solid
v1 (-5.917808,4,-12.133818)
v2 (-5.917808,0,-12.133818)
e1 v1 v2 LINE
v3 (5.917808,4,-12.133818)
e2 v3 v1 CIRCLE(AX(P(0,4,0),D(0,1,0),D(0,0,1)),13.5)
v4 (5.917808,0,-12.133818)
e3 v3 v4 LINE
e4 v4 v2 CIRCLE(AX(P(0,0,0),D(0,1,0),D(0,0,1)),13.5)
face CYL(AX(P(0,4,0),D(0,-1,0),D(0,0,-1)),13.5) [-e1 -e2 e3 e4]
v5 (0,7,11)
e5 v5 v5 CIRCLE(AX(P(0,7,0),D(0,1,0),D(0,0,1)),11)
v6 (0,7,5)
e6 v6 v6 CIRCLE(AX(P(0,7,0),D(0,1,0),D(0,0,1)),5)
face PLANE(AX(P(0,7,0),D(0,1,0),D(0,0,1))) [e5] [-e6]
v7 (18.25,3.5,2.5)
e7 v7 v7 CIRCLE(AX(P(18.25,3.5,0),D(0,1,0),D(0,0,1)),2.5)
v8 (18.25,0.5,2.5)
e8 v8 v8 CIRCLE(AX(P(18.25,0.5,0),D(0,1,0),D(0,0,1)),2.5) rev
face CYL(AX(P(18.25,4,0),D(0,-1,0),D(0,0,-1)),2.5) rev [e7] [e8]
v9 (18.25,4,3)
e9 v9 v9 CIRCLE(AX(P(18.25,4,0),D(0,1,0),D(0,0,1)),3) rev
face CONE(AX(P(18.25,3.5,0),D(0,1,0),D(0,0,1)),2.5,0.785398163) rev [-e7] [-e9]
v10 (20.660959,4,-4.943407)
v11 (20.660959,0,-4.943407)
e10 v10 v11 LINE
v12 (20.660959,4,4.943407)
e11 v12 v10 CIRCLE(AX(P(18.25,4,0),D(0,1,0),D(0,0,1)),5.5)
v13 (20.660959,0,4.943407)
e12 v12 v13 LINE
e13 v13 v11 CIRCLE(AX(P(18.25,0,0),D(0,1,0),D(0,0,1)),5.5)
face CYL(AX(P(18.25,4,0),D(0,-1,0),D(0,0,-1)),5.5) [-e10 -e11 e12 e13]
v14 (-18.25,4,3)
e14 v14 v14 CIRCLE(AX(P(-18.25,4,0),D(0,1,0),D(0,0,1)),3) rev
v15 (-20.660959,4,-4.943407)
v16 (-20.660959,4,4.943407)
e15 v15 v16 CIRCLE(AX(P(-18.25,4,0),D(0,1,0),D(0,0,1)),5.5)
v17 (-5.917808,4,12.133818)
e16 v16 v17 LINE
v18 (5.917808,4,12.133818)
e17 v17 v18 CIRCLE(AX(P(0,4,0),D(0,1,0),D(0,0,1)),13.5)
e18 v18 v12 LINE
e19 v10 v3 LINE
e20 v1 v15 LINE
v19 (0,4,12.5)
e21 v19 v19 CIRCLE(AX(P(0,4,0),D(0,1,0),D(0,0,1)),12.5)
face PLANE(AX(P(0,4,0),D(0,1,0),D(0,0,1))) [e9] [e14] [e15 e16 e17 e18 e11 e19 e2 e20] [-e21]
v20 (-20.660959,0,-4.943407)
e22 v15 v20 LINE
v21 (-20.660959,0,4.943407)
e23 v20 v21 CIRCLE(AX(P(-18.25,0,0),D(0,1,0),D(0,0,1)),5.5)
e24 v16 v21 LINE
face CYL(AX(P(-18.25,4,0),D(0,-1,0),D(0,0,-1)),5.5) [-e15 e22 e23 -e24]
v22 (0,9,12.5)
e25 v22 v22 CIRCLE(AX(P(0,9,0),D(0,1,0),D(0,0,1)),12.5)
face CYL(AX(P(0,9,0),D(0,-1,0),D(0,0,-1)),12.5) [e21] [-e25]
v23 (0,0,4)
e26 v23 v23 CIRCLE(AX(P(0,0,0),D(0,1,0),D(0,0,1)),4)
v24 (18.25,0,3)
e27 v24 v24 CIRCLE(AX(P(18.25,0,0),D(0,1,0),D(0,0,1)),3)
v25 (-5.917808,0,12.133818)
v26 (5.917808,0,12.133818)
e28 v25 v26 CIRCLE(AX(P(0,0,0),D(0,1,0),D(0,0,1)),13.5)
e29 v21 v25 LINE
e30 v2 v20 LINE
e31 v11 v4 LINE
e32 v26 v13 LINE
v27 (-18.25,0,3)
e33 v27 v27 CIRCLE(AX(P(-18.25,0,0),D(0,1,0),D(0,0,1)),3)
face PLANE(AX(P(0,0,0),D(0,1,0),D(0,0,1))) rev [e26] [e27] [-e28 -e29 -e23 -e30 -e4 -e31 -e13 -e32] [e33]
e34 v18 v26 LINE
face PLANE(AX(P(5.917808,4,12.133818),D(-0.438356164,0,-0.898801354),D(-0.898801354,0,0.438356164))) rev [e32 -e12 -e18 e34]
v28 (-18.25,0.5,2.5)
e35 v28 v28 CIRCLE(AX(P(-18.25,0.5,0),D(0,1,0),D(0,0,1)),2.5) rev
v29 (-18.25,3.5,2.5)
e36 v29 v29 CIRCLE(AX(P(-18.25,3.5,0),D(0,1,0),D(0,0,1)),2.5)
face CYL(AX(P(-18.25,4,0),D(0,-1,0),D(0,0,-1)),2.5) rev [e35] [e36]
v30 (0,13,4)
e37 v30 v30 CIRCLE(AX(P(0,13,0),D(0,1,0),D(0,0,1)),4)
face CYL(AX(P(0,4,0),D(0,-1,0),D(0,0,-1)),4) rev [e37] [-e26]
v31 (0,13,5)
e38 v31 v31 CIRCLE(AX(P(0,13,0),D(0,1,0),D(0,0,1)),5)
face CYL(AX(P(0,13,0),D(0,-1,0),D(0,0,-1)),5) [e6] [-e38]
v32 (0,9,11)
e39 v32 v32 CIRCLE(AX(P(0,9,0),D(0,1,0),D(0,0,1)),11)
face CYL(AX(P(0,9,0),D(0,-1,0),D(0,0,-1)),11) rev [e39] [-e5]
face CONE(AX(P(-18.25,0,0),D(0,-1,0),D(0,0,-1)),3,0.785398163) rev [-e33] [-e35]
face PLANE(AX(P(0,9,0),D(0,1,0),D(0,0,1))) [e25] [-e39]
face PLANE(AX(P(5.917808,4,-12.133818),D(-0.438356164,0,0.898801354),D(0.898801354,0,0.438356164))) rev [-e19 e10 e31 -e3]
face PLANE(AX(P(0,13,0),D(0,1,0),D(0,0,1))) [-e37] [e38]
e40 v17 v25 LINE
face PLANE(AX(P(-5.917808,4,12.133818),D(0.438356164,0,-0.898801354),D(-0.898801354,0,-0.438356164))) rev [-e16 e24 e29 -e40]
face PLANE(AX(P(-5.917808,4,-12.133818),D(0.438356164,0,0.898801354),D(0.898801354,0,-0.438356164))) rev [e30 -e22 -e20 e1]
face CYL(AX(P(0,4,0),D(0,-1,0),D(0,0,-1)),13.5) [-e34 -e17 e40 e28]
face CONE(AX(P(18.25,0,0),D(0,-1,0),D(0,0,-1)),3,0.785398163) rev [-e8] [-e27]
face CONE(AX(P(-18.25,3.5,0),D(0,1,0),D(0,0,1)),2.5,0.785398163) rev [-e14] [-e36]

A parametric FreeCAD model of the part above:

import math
import FreeCAD as App
import Part
import Sketcher
from FreeCAD import Vector
Q = App.Units.Quantity


def edges_at(feature, points):
    """Names of the edges that pass closest to the given points."""
    edges = feature.Shape.Edges
    near = lambda p: min(range(len(edges)), key=lambda i: edges[i].distToShape(Part.Vertex(*p))[0])
    return sorted({f"Edge{near(p) + 1}" for p in points})

doc = App.newDocument("Part")
body = doc.addObject("PartDesign::Body", "Body")

# Sketch on XZ plane
sketch1 = body.newObject("Sketcher::SketchObject", "Sketch")
sketch1.AttachmentSupport = (doc.getObject("XZ_Plane"), [""])
sketch1.MapMode = "FlatFace"
sketch1.addGeometry(Part.LineSegment(Vector(-5.9, -12.1, 0), Vector(-20.7, -4.9, 0)), False)
sketch1.addGeometry(Part.ArcOfCircle(Part.Circle(Vector(-18.2, 0, 0), Vector(0, 0, 1), 5.5), math.radians(116), math.radians(244)), False)
sketch1.addGeometry(Part.LineSegment(Vector(-20.7, 4.9, 0), Vector(-5.9, 12.1, 0)), False)
sketch1.addGeometry(Part.ArcOfCircle(Part.Circle(Vector(0, 0, 0), Vector(0, 0, 1), 13.5), math.radians(64), math.radians(116)), False)
sketch1.addGeometry(Part.LineSegment(Vector(5.9, 12.1, 0), Vector(20.7, 4.9, 0)), False)
sketch1.addGeometry(Part.ArcOfCircle(Part.Circle(Vector(18.2, 0, 0), Vector(0, 0, 1), 5.5), math.radians(-64), math.radians(64)), False)
sketch1.addGeometry(Part.LineSegment(Vector(20.7, -4.9, 0), Vector(5.9, -12.1, 0)), False)
sketch1.addGeometry(Part.ArcOfCircle(Part.Circle(Vector(0, 0, 0), Vector(0, 0, 1), 13.5), math.radians(-116), math.radians(-64)), False)
sketch1.addGeometry(Part.Circle(Vector(-18.2, 0, 0), Vector(0, 0, 1), 2.5), False)
sketch1.addGeometry(Part.Circle(Vector(0, 0, 0), Vector(0, 0, 1), 4), False)
sketch1.addGeometry(Part.Circle(Vector(18.2, 0, 0), Vector(0, 0, 1), 2.5), False)
sketch1.addConstraint(Sketcher.Constraint("Tangent", 0, 2, 1, 2))
sketch1.addConstraint(Sketcher.Constraint("Tangent", 1, 1, 2, 1))
sketch1.addConstraint(Sketcher.Constraint("Tangent", 2, 2, 3, 2))
sketch1.addConstraint(Sketcher.Constraint("Tangent", 3, 1, 4, 1))
sketch1.addConstraint(Sketcher.Constraint("Tangent", 4, 2, 5, 2))
sketch1.addConstraint(Sketcher.Constraint("Tangent", 5, 1, 6, 1))
sketch1.addConstraint(Sketcher.Constraint("Tangent", 6, 2, 7, 2))
sketch1.addConstraint(Sketcher.Constraint("Tangent", 7, 1, 0, 1))
sketch1.addConstraint(Sketcher.Constraint("Coincident", 3, 3, -1, 1))
sketch1.addConstraint(Sketcher.Constraint("Coincident", 7, 3, -1, 1))
sketch1.addConstraint(Sketcher.Constraint("Coincident", 9, 3, -1, 1))
sketch1.addConstraint(Sketcher.Constraint("Coincident", 8, 3, 1, 3))
sketch1.addConstraint(Sketcher.Constraint("Coincident", 10, 3, 5, 3))
sketch1.addConstraint(Sketcher.Constraint("Equal", 1, 5))
sketch1.addConstraint(Sketcher.Constraint("Equal", 3, 7))
sketch1.addConstraint(Sketcher.Constraint("Equal", 8, 10))
sketch1.addConstraint(Sketcher.Constraint("Symmetric", 1, 3, 5, 3, -1, 1))
sketch1.addConstraint(Sketcher.Constraint("PointOnObject", 1, 3, -1))
sketch1.addConstraint(Sketcher.Constraint("Diameter", 8, Q("5 mm")))
sketch1.addConstraint(Sketcher.Constraint("Diameter", 9, Q("8 mm")))
sketch1.addConstraint(Sketcher.Constraint("Radius", 1, Q("5.5 mm")))
sketch1.addConstraint(Sketcher.Constraint("Radius", 3, Q("13.5 mm")))
sketch1.addConstraint(Sketcher.Constraint("DistanceX", 1, 3, 5, 3, Q("36.5 mm")))
pad1 = body.newObject("PartDesign::Pad", "Pad")
pad1.Profile = sketch1
pad1.Length = 4
pad1.Reversed = True

# Sketch on XZ plane
sketch2 = body.newObject("Sketcher::SketchObject", "Sketch001")
sketch2.AttachmentSupport = (doc.getObject("XZ_Plane"), [""])
sketch2.MapMode = "FlatFace"
sketch2.AttachmentOffset = App.Placement(Vector(0, 0, -4), App.Rotation())
sketch2.addGeometry(Part.Circle(Vector(0, 0, 0), Vector(0, 0, 1), 5), False)
sketch2.addGeometry(Part.Circle(Vector(0, 0, 0), Vector(0, 0, 1), 4), False)
sketch2.addConstraint(Sketcher.Constraint("Coincident", 0, 3, -1, 1))
sketch2.addConstraint(Sketcher.Constraint("Coincident", 1, 3, -1, 1))
sketch2.addConstraint(Sketcher.Constraint("Diameter", 0, Q("10 mm")))
sketch2.addConstraint(Sketcher.Constraint("Diameter", 1, Q("8 mm")))
pad2 = body.newObject("PartDesign::Pad", "Pad001")
pad2.Profile = sketch2
pad2.Length = 9
pad2.Reversed = True

# Sketch on XZ plane
sketch3 = body.newObject("Sketcher::SketchObject", "Sketch002")
sketch3.AttachmentSupport = (doc.getObject("XZ_Plane"), [""])
sketch3.MapMode = "FlatFace"
sketch3.AttachmentOffset = App.Placement(Vector(0, 0, -4), App.Rotation())
sketch3.addGeometry(Part.Circle(Vector(0, 0, 0), Vector(0, 0, 1), 12), False)
sketch3.addGeometry(Part.Circle(Vector(0, 0, 0), Vector(0, 0, 1), 11), False)
sketch3.addConstraint(Sketcher.Constraint("Coincident", 0, 3, -1, 1))
sketch3.addConstraint(Sketcher.Constraint("Coincident", 1, 3, -1, 1))
sketch3.addConstraint(Sketcher.Constraint("Diameter", 0, Q("25 mm")))
sketch3.addConstraint(Sketcher.Constraint("Diameter", 1, Q("22 mm")))
pad3 = body.newObject("PartDesign::Pad", "Pad002")
pad3.Profile = sketch3
pad3.Length = 5
pad3.Reversed = True

# Sketch on XZ plane
sketch4 = body.newObject("Sketcher::SketchObject", "Sketch003")
sketch4.AttachmentSupport = (doc.getObject("XZ_Plane"), [""])
sketch4.MapMode = "FlatFace"
sketch4.AttachmentOffset = App.Placement(Vector(0, 0, -4), App.Rotation())
sketch4.addGeometry(Part.Circle(Vector(0, 0, 0), Vector(0, 0, 1), 11), False)
sketch4.addGeometry(Part.Circle(Vector(0, 0, 0), Vector(0, 0, 1), 5), False)
sketch4.addConstraint(Sketcher.Constraint("Coincident", 0, 3, -1, 1))
sketch4.addConstraint(Sketcher.Constraint("Coincident", 1, 3, -1, 1))
sketch4.addConstraint(Sketcher.Constraint("Diameter", 0, Q("22 mm")))
sketch4.addConstraint(Sketcher.Constraint("Diameter", 1, Q("10 mm")))
pad4 = body.newObject("PartDesign::Pad", "Pad003")
pad4.Profile = sketch4
pad4.Length = 3
pad4.Reversed = True
doc.recompute()

chamfer = body.newObject("PartDesign::Chamfer", "Chamfer")
chamfer.Base = (pad4, edges_at(pad4, [
    (-18.25, 0, -2.5),
    (-18.25, 4, -2.5),
    (18.25, 0, -2.5),
    (18.25, 4, -2.5),
]))
chamfer.Size = 0.5

doc.recompute()
